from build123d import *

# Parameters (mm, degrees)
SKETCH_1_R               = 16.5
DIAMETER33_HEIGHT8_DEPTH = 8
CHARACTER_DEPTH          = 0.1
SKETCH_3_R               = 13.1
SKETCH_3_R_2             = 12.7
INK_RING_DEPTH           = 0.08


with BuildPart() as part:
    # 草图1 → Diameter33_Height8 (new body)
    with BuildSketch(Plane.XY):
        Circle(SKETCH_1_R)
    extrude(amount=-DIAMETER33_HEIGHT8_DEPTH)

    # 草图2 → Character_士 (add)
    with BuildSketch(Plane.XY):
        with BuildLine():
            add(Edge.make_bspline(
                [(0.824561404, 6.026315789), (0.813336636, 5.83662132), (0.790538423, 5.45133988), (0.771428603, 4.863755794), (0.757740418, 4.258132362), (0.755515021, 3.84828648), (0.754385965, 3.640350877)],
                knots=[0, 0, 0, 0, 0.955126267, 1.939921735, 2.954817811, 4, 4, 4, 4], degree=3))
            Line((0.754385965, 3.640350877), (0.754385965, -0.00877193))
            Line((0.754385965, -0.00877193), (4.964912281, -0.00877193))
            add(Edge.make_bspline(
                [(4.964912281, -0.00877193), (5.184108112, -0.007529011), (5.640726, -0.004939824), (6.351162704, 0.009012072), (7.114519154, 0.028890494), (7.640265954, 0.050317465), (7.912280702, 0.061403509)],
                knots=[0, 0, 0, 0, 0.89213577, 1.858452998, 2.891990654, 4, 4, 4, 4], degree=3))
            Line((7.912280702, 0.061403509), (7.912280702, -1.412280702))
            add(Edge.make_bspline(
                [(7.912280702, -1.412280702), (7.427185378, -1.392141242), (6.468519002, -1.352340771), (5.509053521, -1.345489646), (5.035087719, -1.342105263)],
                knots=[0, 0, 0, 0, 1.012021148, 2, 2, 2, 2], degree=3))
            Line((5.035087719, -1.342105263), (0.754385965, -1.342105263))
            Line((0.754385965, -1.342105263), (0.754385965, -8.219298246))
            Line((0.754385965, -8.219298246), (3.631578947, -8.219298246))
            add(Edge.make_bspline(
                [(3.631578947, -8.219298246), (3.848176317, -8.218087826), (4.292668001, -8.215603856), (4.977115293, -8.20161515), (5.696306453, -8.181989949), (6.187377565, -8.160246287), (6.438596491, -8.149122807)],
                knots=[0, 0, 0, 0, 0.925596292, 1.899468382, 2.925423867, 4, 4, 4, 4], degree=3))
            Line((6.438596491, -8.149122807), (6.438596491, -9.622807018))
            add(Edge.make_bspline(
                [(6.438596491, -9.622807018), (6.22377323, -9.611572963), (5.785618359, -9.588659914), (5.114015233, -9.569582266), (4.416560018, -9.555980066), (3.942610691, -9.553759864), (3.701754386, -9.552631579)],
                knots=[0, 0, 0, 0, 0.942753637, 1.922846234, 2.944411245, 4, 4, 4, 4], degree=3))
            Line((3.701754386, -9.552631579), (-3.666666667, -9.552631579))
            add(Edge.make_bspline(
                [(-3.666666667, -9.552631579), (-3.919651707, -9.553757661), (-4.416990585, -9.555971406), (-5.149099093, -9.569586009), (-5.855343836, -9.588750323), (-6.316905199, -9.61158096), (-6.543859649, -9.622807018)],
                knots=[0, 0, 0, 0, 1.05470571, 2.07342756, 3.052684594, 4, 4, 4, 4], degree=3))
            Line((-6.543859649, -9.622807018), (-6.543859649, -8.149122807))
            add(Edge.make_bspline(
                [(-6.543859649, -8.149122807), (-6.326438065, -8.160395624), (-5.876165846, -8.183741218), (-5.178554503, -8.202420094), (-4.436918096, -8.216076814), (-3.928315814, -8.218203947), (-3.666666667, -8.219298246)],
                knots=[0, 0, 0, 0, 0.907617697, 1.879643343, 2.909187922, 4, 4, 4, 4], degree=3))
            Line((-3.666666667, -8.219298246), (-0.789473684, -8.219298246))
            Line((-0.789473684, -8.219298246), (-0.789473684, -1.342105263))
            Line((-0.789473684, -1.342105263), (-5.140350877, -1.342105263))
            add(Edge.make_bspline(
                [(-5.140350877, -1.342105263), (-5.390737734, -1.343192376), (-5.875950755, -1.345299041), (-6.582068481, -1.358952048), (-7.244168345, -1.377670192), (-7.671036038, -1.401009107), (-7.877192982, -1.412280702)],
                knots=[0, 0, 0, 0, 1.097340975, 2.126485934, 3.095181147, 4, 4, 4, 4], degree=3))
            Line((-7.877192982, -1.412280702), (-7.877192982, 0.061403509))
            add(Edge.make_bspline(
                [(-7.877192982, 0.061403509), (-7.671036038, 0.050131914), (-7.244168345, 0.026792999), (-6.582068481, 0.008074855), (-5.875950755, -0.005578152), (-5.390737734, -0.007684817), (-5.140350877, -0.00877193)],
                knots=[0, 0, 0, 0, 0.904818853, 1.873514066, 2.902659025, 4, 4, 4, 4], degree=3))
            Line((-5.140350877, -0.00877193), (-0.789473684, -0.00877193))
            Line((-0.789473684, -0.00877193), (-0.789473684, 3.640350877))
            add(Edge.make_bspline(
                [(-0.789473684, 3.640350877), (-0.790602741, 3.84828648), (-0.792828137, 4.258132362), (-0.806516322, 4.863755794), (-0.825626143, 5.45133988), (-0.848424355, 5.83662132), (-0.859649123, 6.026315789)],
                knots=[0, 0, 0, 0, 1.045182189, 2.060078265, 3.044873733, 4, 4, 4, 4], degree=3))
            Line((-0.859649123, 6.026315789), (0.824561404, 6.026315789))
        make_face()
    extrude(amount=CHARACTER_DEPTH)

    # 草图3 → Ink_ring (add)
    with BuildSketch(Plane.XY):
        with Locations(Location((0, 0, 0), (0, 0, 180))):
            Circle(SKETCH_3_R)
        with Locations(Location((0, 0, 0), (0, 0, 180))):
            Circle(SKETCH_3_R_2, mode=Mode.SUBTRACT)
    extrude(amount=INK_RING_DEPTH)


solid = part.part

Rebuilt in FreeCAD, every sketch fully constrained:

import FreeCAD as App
import Part
import Sketcher

V = App.Vector
Q = App.Units.Quantity

doc = App.newDocument("Part")
body = doc.addObject("PartDesign::Body", "Body")

# Sketch on XY plane
sketch1 = doc.addObject("Sketcher::SketchObject", "Sketch")
body.addObject(sketch1)
sketch1.AttachmentSupport = (doc.XY_Plane, [""])
sketch1.MapMode = "FlatFace"
sketch1.addGeometry(Part.Circle(V(0, 0, 0), V(0, 0, 1), 16), False)
sketch1.addConstraint([
    Sketcher.Constraint("Coincident", 0, 3, -1, 1),
    Sketcher.Constraint("Diameter", 0, Q("33 mm")),
])
pad1 = doc.addObject("PartDesign::Pad", "Pad")
body.addObject(pad1)
pad1.Profile = sketch1
pad1.Length = 8
pad1.Reversed = True

# Sketch on XY plane
sketch2 = doc.addObject("Sketcher::SketchObject", "Sketch001")
body.addObject(sketch2)
sketch2.AttachmentSupport = (doc.XY_Plane, [""])
sketch2.MapMode = "FlatFace"
sketch2.addGeometry([
    Part.BSplineCurve([V(0.824561, 6.026316, 0), V(0.813337, 5.836621, 0), V(0.790538, 5.45134, 0), V(0.771429, 4.863756, 0), V(0.75774, 4.258132, 0), V(0.755515, 3.848286, 0), V(0.754386, 3.640351, 0)], [4, 1, 1, 1, 4], [0, 0.955126267, 1.939921735, 2.954817811, 4], False, 3, [1, 1, 1, 1, 1, 1, 1], False),  # 0
    Part.LineSegment(V(0.824561, 6.026316, 0), V(-0.859649, 6.026316, 0)),  # 1
    Part.BSplineCurve([V(-0.789474, 3.640351, 0), V(-0.790603, 3.848286, 0), V(-0.792828, 4.258132, 0), V(-0.806516, 4.863756, 0), V(-0.825626, 5.45134, 0), V(-0.848424, 5.836621, 0), V(-0.859649, 6.026316, 0)], [4, 1, 1, 1, 4], [0, 1.045182189, 2.060078265, 3.044873733, 4], False, 3, [1, 1, 1, 1, 1, 1, 1], False),  # 2
    Part.LineSegment(V(-0.789474, 3.640351, 0), V(-0.789474, -0.008772, 0)),  # 3
    Part.LineSegment(V(-0.789474, -0.008772, 0), V(-5.140351, -0.008772, 0)),  # 4
    Part.BSplineCurve([V(-7.877193, 0.061404, 0), V(-7.671036, 0.050132, 0), V(-7.244168, 0.026793, 0), V(-6.582068, 0.008075, 0), V(-5.875951, -0.005578, 0), V(-5.390738, -0.007685, 0), V(-5.140351, -0.008772, 0)], [4, 1, 1, 1, 4], [0, 0.904818853, 1.873514066, 2.902659025, 4], False, 3, [1, 1, 1, 1, 1, 1, 1], False),  # 5
    Part.LineSegment(V(-7.877193, 0.061404, 0), V(-7.877193, -1.412281, 0)),  # 6
    Part.BSplineCurve([V(-5.140351, -1.342105, 0), V(-5.390738, -1.343192, 0), V(-5.875951, -1.345299, 0), V(-6.582068, -1.358952, 0), V(-7.244168, -1.37767, 0), V(-7.671036, -1.401009, 0), V(-7.877193, -1.412281, 0)], [4, 1, 1, 1, 4], [0, 1.097340975, 2.126485934, 3.095181147, 4], False, 3, [1, 1, 1, 1, 1, 1, 1], False),  # 7
    Part.LineSegment(V(-5.140351, -1.342105, 0), V(-0.789474, -1.342105, 0)),  # 8
    Part.LineSegment(V(-0.789474, -1.342105, 0), V(-0.789474, -8.219298, 0)),  # 9
    Part.LineSegment(V(-0.789474, -8.219298, 0), V(-3.666667, -8.219298, 0)),  # 10
    Part.BSplineCurve([V(-6.54386, -8.149123, 0), V(-6.326438, -8.160396, 0), V(-5.876166, -8.183741, 0), V(-5.178555, -8.20242, 0), V(-4.436918, -8.216077, 0), V(-3.928316, -8.218204, 0), V(-3.666667, -8.219298, 0)], [4, 1, 1, 1, 4], [0, 0.907617697, 1.879643343, 2.909187922, 4], False, 3, [1, 1, 1, 1, 1, 1, 1], False),  # 11
    Part.LineSegment(V(-6.54386, -8.149123, 0), V(-6.54386, -9.622807, 0)),  # 12
    Part.BSplineCurve([V(-3.666667, -9.552632, 0), V(-3.919652, -9.553758, 0), V(-4.416991, -9.555971, 0), V(-5.149099, -9.569586, 0), V(-5.855344, -9.58875, 0), V(-6.316905, -9.611581, 0), V(-6.54386, -9.622807, 0)], [4, 1, 1, 1, 4], [0, 1.05470571, 2.07342756, 3.052684594, 4], False, 3, [1, 1, 1, 1, 1, 1, 1], False),  # 13
    Part.LineSegment(V(-3.666667, -9.552632, 0), V(3.701754, -9.552632, 0)),  # 14
    Part.BSplineCurve([V(6.438596, -9.622807, 0), V(6.223773, -9.611573, 0), V(5.785618, -9.58866, 0), V(5.114015, -9.569582, 0), V(4.41656, -9.55598, 0), V(3.942611, -9.55376, 0), V(3.701754, -9.552632, 0)], [4, 1, 1, 1, 4], [0, 0.942753637, 1.922846234, 2.944411245, 4], False, 3, [1, 1, 1, 1, 1, 1, 1], False),  # 15
    Part.LineSegment(V(6.438596, -9.622807, 0), V(6.438596, -8.149123, 0)),  # 16
    Part.BSplineCurve([V(3.631579, -8.219298, 0), V(3.848176, -8.218088, 0), V(4.292668, -8.215604, 0), V(4.977115, -8.201615, 0), V(5.696306, -8.18199, 0), V(6.187378, -8.160246, 0), V(6.438596, -8.149123, 0)], [4, 1, 1, 1, 4], [0, 0.925596292, 1.899468382, 2.925423867, 4], False, 3, [1, 1, 1, 1, 1, 1, 1], False),  # 17
    Part.LineSegment(V(3.631579, -8.219298, 0), V(0.754386, -8.219298, 0)),  # 18
    Part.LineSegment(V(0.754386, -8.219298, 0), V(0.754386, -1.342105, 0)),  # 19
    Part.LineSegment(V(0.754386, -1.342105, 0), V(5.035088, -1.342105, 0)),  # 20
    Part.BSplineCurve([V(7.912281, -1.412281, 0), V(7.427185, -1.392141, 0), V(6.468519, -1.352341, 0), V(5.509054, -1.34549, 0), V(5.035088, -1.342105, 0)], [4, 1, 4], [0, 1.012021148, 2], False, 3, [1, 1, 1, 1, 1], False),  # 21
    Part.LineSegment(V(7.912281, -1.412281, 0), V(7.912281, 0.061404, 0)),  # 22
    Part.BSplineCurve([V(4.964912, -0.008772, 0), V(5.184108, -0.007529, 0), V(5.640726, -0.00494, 0), V(6.351163, 0.009012, 0), V(7.114519, 0.02889, 0), V(7.640266, 0.050317, 0), V(7.912281, 0.061404, 0)], [4, 1, 1, 1, 4], [0, 0.89213577, 1.858452998, 2.891990654, 4], False, 3, [1, 1, 1, 1, 1, 1, 1], False),  # 23
    Part.LineSegment(V(4.964912, -0.008772, 0), V(0.754386, -0.008772, 0)),  # 24
    Part.LineSegment(V(0.754386, -0.008772, 0), V(0.754386, 3.640351, 0)),  # 25
], False)
sketch2.addConstraint([
    Sketcher.Constraint("Block", 0),
    Sketcher.Constraint("Block", 2),
    Sketcher.Constraint("Block", 5),
    Sketcher.Constraint("Block", 7),
    Sketcher.Constraint("Block", 11),
    Sketcher.Constraint("Block", 13),
    Sketcher.Constraint("Block", 15),
    Sketcher.Constraint("Block", 17),
    Sketcher.Constraint("Block", 21),
    Sketcher.Constraint("Block", 23),
    Sketcher.Constraint("Coincident", 0, 1, 1, 1),
    Sketcher.Constraint("Coincident", 1, 2, 2, 2),
    Sketcher.Constraint("Coincident", 2, 1, 3, 1),
    Sketcher.Constraint("Coincident", 3, 2, 4, 1),
    Sketcher.Constraint("Coincident", 4, 2, 5, 2),
    Sketcher.Constraint("Coincident", 5, 1, 6, 1),
    Sketcher.Constraint("Coincident", 6, 2, 7, 2),
    Sketcher.Constraint("Coincident", 7, 1, 8, 1),
    Sketcher.Constraint("Coincident", 8, 2, 9, 1),
    Sketcher.Constraint("Coincident", 9, 2, 10, 1),
    Sketcher.Constraint("Coincident", 10, 2, 11, 2),
    Sketcher.Constraint("Coincident", 11, 1, 12, 1),
    Sketcher.Constraint("Coincident", 12, 2, 13, 2),
    Sketcher.Constraint("Coincident", 13, 1, 14, 1),
    Sketcher.Constraint("Coincident", 14, 2, 15, 2),
    Sketcher.Constraint("Coincident", 15, 1, 16, 1),
    Sketcher.Constraint("Coincident", 16, 2, 17, 2),
    Sketcher.Constraint("Coincident", 17, 1, 18, 1),
    Sketcher.Constraint("Coincident", 18, 2, 19, 1),
    Sketcher.Constraint("Coincident", 19, 2, 20, 1),
    Sketcher.Constraint("Coincident", 20, 2, 21, 2),
    Sketcher.Constraint("Coincident", 21, 1, 22, 1),
    Sketcher.Constraint("Coincident", 22, 2, 23, 2),
    Sketcher.Constraint("Coincident", 23, 1, 24, 1),
    Sketcher.Constraint("Coincident", 24, 2, 25, 1),
    Sketcher.Constraint("Coincident", 25, 2, 0, 2),
    Sketcher.Constraint("Vertical", 3),
    Sketcher.Constraint("Horizontal", 4),
    Sketcher.Constraint("Horizontal", 8),
    Sketcher.Constraint("Vertical", 9),
    Sketcher.Constraint("Horizontal", 10),
    Sketcher.Constraint("Horizontal", 18),
    Sketcher.Constraint("Vertical", 19),
    Sketcher.Constraint("Horizontal", 20),
    Sketcher.Constraint("Horizontal", 24),
    Sketcher.Constraint("Vertical", 25),
    Sketcher.Constraint("Vertical", 3, 2, 8, 2),
    Sketcher.Constraint("Vertical", 19, 2, 24, 2),
])
pad2 = doc.addObject("PartDesign::Pad", "Pad001")
body.addObject(pad2)
pad2.Profile = sketch2
pad2.Length = 0.1

# Sketch on XY plane
sketch3 = doc.addObject("Sketcher::SketchObject", "Sketch002")
body.addObject(sketch3)
sketch3.AttachmentSupport = (doc.XY_Plane, [""])
sketch3.MapMode = "FlatFace"
sketch3.addGeometry([
    Part.Circle(V(0, 0, 0), V(0, 0, 1), 13),
    Part.Circle(V(0, 0, 0), V(0, 0, 1), 13),
], False)
sketch3.addConstraint([
    Sketcher.Constraint("Coincident", 0, 3, -1, 1),
    Sketcher.Constraint("Coincident", 1, 3, -1, 1),
    Sketcher.Constraint("Diameter", 0, Q("26.2 mm")),
    Sketcher.Constraint("Diameter", 1, Q("25.4 mm")),
])
pad3 = doc.addObject("PartDesign::Pad", "Pad002")
body.addObject(pad3)
pad3.Profile = sketch3
pad3.Length = 0.08

doc.recompute()
